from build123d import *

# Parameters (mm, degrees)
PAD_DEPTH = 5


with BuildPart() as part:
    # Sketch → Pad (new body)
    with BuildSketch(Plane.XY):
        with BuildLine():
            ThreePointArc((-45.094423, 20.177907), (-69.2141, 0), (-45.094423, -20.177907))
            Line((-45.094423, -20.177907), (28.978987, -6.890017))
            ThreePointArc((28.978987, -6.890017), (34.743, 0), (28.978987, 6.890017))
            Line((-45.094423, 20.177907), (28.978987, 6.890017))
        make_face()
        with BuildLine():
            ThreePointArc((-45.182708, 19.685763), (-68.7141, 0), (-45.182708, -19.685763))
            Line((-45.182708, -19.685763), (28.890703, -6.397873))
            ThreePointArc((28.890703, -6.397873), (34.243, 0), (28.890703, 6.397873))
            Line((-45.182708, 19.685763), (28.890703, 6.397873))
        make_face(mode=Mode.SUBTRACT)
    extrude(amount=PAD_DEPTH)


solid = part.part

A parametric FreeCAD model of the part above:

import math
import FreeCAD as App
import Part
import Sketcher
Q = App.Units.Quantity

doc = App.newDocument("Part")
body = doc.addObject("PartDesign::Body", "Body")

# Sketch on XY plane
sketch1 = doc.addObject("Sketcher::SketchObject", "Sketch")
body.addObject(sketch1)
sketch1.AttachmentSupport = (doc.XY_Plane, [""])
sketch1.MapMode = "FlatFace"
sketch1.addGeometry(Part.ArcOfCircle(Part.Circle(App.Vector(-49, 0, 0), App.Vector(0, 0, 1), 20), math.radians(80), math.radians(280)), False)
sketch1.addGeometry(Part.LineSegment(App.Vector(-45, -20, 0), App.Vector(29, -7, 0)), False)
sketch1.addGeometry(Part.ArcOfCircle(Part.Circle(App.Vector(28, 0, 0), App.Vector(0, 0, 1), 7), math.radians(-80), math.radians(80)), False)
sketch1.addGeometry(Part.LineSegment(App.Vector(29, 7, 0), App.Vector(-45, 20, 0)), False)
sketch1.addGeometry(Part.ArcOfCircle(Part.Circle(App.Vector(-49, 0, 0), App.Vector(0, 0, 1), 20), math.radians(80), math.radians(280)), False)
sketch1.addGeometry(Part.LineSegment(App.Vector(-45, 20, 0), App.Vector(29, 6, 0)), False)
sketch1.addGeometry(Part.ArcOfCircle(Part.Circle(App.Vector(28, 0, 0), App.Vector(0, 0, 1), 7), math.radians(-80), math.radians(80)), False)
sketch1.addGeometry(Part.LineSegment(App.Vector(29, -6, 0), App.Vector(-45, -20, 0)), False)
sketch1.addConstraint(Sketcher.Constraint("Tangent", 0, 2, 1, 1))
sketch1.addConstraint(Sketcher.Constraint("Tangent", 1, 2, 2, 1))
sketch1.addConstraint(Sketcher.Constraint("Tangent", 2, 2, 3, 1))
sketch1.addConstraint(Sketcher.Constraint("Tangent", 3, 2, 0, 1))
sketch1.addConstraint(Sketcher.Constraint("Tangent", 4, 1, 5, 1))
sketch1.addConstraint(Sketcher.Constraint("Tangent", 5, 2, 6, 2))
sketch1.addConstraint(Sketcher.Constraint("Tangent", 6, 1, 7, 1))
sketch1.addConstraint(Sketcher.Constraint("Tangent", 7, 2, 4, 2))
sketch1.addConstraint(Sketcher.Constraint("Coincident", 4, 3, 0, 3))
sketch1.addConstraint(Sketcher.Constraint("Coincident", 6, 3, 2, 3))
sketch1.addConstraint(Sketcher.Constraint("Symmetric", 1, 2, 2, 2, -1))
sketch1.addConstraint(Sketcher.Constraint("Parallel", 3, 5))
sketch1.addConstraint(Sketcher.Constraint("Radius", 2, Q("7 mm")))
sketch1.addConstraint(Sketcher.Constraint("Radius", 4, Q("20 mm")))
sketch1.addConstraint(Sketcher.Constraint("Radius", 0, Q("20.5 mm")))
sketch1.addConstraint(Sketcher.Constraint("Angle", 1, Q("10.170012 deg")))
sketch1.addConstraint(Sketcher.Constraint("DistanceX", -1, 1, 2, 3, Q("27.743 mm")))
pad1 = doc.addObject("PartDesign::Pad", "Pad")
body.addObject(pad1)
pad1.Profile = sketch1
pad1.Length = 5

doc.recompute()
